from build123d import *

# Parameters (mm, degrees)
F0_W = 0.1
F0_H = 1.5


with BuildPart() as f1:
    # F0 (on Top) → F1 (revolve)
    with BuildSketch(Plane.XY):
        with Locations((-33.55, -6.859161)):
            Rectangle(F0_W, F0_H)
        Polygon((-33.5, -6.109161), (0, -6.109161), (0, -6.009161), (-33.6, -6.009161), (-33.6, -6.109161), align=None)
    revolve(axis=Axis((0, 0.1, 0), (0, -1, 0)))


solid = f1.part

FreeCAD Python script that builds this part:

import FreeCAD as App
import Part
import Sketcher

V = App.Vector
Q = App.Units.Quantity


def add_polygon(sketch, points):
    """Adds a closed chain of lines whose ends are joined by coincident constraints."""
    first, n = sketch.GeometryCount, len(points)
    for a, b in zip(points, points[1:] + points[:1]):
        sketch.addGeometry(Part.LineSegment(App.Vector(*a, 0), App.Vector(*b, 0)), False)
    for i in range(n):
        sketch.addConstraint(Sketcher.Constraint("Coincident", first + i, 2, first + (i + 1) % n, 1))

doc = App.newDocument("Part")
params = doc.addObject("Spreadsheet::Sheet", "Params")
for row, (alias, value) in enumerate([
    ("sketch1_width", "0.1 mm"),
    ("sketch1_width2", "33.5 mm"),
    ("sketch1_height", "1.5 mm"),
    ("revolution_angle", "360 deg"),
], start=1):
    params.set(f"A{row}", alias)
    params.set(f"B{row}", "=" + value)
    params.setAlias(f"B{row}", alias)

body = doc.addObject("PartDesign::Body", "Body")

sketch1 = body.newObject("Sketcher::SketchObject", "Sketch")
sketch1.AttachmentSupport = (doc.getObject("XY_Plane"), [""])
sketch1.MapMode = "FlatFace"
add_polygon(sketch1, [(-33.6, -7.61), (-33.5, -7.61), (-33.5, -6.11), (0, -6.11), (0, -6.01), (-33.6, -6.01)])
sketch1.addConstraint(Sketcher.Constraint("Horizontal", 0))
sketch1.addConstraint(Sketcher.Constraint("Vertical", 1))
sketch1.addConstraint(Sketcher.Constraint("Horizontal", 2))
sketch1.addConstraint(Sketcher.Constraint("Vertical", 3))
sketch1.addConstraint(Sketcher.Constraint("Horizontal", 4))
sketch1.addConstraint(Sketcher.Constraint("Vertical", 5))
sketch1.addConstraint(Sketcher.Constraint("PointOnObject", 2, 2, -2))
sketch1.addConstraint(Sketcher.Constraint("Equal", 0, 3))
sketch1.addConstraint(Sketcher.Constraint("DistanceX", 0, 1, 0, 2, Q("0.1 mm")))
sketch1.addConstraint(Sketcher.Constraint("DistanceX", 2, 1, 2, 2, Q("33.5 mm")))
sketch1.addConstraint(Sketcher.Constraint("DistanceY", 1, 1, 1, 2, Q("1.5 mm")))
sketch1.addConstraint(Sketcher.Constraint("DistanceY", 0, 2, -1, 1, Q("7.609161 mm")))
sketch1.setExpression("Constraints[14]", "Params.sketch1_width")
sketch1.setExpression("Constraints[15]", "Params.sketch1_width2")
sketch1.setExpression("Constraints[16]", "Params.sketch1_height")
revolution = body.newObject("PartDesign::Revolution", "Revolution")
revolution.Profile = sketch1
revolution.ReferenceAxis = (sketch1, ["V_Axis"])
revolution.setExpression("Angle", "Params.revolution_angle")

doc.recompute()
